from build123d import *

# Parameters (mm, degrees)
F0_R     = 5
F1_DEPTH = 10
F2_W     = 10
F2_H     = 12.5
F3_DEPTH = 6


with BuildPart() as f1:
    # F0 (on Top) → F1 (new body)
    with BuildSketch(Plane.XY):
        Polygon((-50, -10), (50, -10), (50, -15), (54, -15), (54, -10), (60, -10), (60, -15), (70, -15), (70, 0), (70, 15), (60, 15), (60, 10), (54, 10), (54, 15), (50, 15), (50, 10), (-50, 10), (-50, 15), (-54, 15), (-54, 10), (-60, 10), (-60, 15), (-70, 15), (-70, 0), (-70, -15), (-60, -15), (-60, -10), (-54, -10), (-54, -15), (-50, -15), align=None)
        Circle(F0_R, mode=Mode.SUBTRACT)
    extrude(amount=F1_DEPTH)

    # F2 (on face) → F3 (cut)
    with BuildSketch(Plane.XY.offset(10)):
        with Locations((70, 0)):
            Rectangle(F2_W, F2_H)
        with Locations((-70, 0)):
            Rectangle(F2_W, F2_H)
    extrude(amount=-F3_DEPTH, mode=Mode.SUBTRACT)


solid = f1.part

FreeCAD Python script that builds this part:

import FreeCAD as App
import Part
import Sketcher

V = App.Vector
Q = App.Units.Quantity


def add_polygon(sketch, points):
    """Adds a closed chain of lines whose ends are joined by coincident constraints."""
    first, n = sketch.GeometryCount, len(points)
    for a, b in zip(points, points[1:] + points[:1]):
        sketch.addGeometry(Part.LineSegment(App.Vector(*a, 0), App.Vector(*b, 0)), False)
    for i in range(n):
        sketch.addConstraint(Sketcher.Constraint("Coincident", first + i, 2, first + (i + 1) % n, 1))

doc = App.newDocument("Part")
body = doc.addObject("PartDesign::Body", "Body")

# Sketch on XY plane
sketch1 = body.newObject("Sketcher::SketchObject", "Sketch")
sketch1.AttachmentSupport = (doc.getObject("XY_Plane"), [""])
sketch1.MapMode = "FlatFace"
add_polygon(sketch1, [(-50, -10), (50, -10), (50, -15), (54, -15), (54, -10), (60, -10), (60, -15), (70, -15), (70, 15), (60, 15), (60, 10), (54, 10), (54, 15), (50, 15), (50, 10), (-50, 10), (-50, 15), (-54, 15), (-54, 10), (-60, 10), (-60, 15), (-70, 15), (-70, -15), (-60, -15), (-60, -10), (-54, -10), (-54, -15), (-50, -15)])  # lines 0-27
sketch1.addGeometry(Part.Circle(V(0, 0, 0), V(0, 0, 1), 5), False)  # 28
sketch1.addConstraint([
    Sketcher.Constraint("Horizontal", 0),
    Sketcher.Constraint("Vertical", 1),
    Sketcher.Constraint("Horizontal", 2),
    Sketcher.Constraint("Vertical", 3),
    Sketcher.Constraint("Horizontal", 4),
    Sketcher.Constraint("Vertical", 5),
    Sketcher.Constraint("Horizontal", 6),
    Sketcher.Constraint("Vertical", 7),
    Sketcher.Constraint("Horizontal", 8),
    Sketcher.Constraint("Vertical", 9),
    Sketcher.Constraint("Horizontal", 10),
    Sketcher.Constraint("Vertical", 11),
    Sketcher.Constraint("Horizontal", 12),
    Sketcher.Constraint("Vertical", 13),
    Sketcher.Constraint("Horizontal", 14),
    Sketcher.Constraint("Vertical", 15),
    Sketcher.Constraint("Horizontal", 16),
    Sketcher.Constraint("Vertical", 17),
    Sketcher.Constraint("Horizontal", 18),
    Sketcher.Constraint("Vertical", 19),
    Sketcher.Constraint("Horizontal", 20),
    Sketcher.Constraint("Vertical", 21),
    Sketcher.Constraint("Horizontal", 22),
    Sketcher.Constraint("Vertical", 23),
    Sketcher.Constraint("Horizontal", 24),
    Sketcher.Constraint("Vertical", 25),
    Sketcher.Constraint("Horizontal", 26),
    Sketcher.Constraint("Vertical", 27),
    Sketcher.Constraint("Coincident", 28, 3, -1, 1),
    Sketcher.Constraint("Symmetric", 0, 2, 14, 2, -1, 1),
    Sketcher.Constraint("Symmetric", 2, 2, 16, 2, -1, 1),
    Sketcher.Constraint("Symmetric", 4, 2, 18, 2, -1, 1),
    Sketcher.Constraint("Symmetric", 6, 2, 20, 2, -1, 1),
    Sketcher.Constraint("Symmetric", 8, 2, 22, 2, -1, 1),
    Sketcher.Constraint("Symmetric", 10, 2, 24, 2, -1, 1),
    Sketcher.Constraint("Symmetric", 12, 2, 26, 2, -1, 1),
    Sketcher.Constraint("Symmetric", 12, 2, 15, 2, -2),
    Sketcher.Constraint("Symmetric", 10, 2, 17, 2, -2),
    Sketcher.Constraint("Symmetric", 8, 2, 19, 2, -2),
    Sketcher.Constraint("Horizontal", 0, 2, 3, 2),
    Sketcher.Constraint("Horizontal", 2, 2, 5, 2),
    Sketcher.Constraint("Diameter", 28, Q("10 mm")),
    Sketcher.Constraint("DistanceX", 0, 1, 0, 2, Q("100 mm")),
    Sketcher.Constraint("DistanceX", 2, 1, 2, 2, Q("4 mm")),
    Sketcher.Constraint("DistanceX", 4, 1, 4, 2, Q("6 mm")),
    Sketcher.Constraint("DistanceX", 6, 1, 6, 2, Q("10 mm")),
    Sketcher.Constraint("DistanceY", 1, 2, 1, 1, Q("5 mm")),
    Sketcher.Constraint("DistanceY", 7, 1, 7, 2, Q("30 mm")),
])
pad1 = body.newObject("PartDesign::Pad", "Pad")
pad1.Profile = sketch1
pad1.Length = 10

# Sketch on XY plane
sketch2 = body.newObject("Sketcher::SketchObject", "Sketch001")
sketch2.AttachmentSupport = (doc.getObject("XY_Plane"), [""])
sketch2.MapMode = "FlatFace"
sketch2.AttachmentOffset = App.Placement(V(0, 0, 10), App.Rotation())
add_polygon(sketch2, [(65, 6), (65, -6), (75, -6), (75, 6)])  # lines 0-3
add_polygon(sketch2, [(-75, 6), (-75, -6), (-65, -6), (-65, 6)])  # lines 4-7
sketch2.addConstraint([
    Sketcher.Constraint("Vertical", 0),
    Sketcher.Constraint("Horizontal", 1),
    Sketcher.Constraint("Vertical", 2),
    Sketcher.Constraint("Horizontal", 3),
    Sketcher.Constraint("Vertical", 4),
    Sketcher.Constraint("Horizontal", 5),
    Sketcher.Constraint("Vertical", 6),
    Sketcher.Constraint("Horizontal", 7),
    Sketcher.Constraint("Symmetric", 2, 2, 4, 2, -1, 1),
    Sketcher.Constraint("Symmetric", 0, 2, 6, 2, -1, 1),
    Sketcher.Constraint("Horizontal", 1, 2, 4, 2),
    Sketcher.Constraint("DistanceX", 1, 1, 1, 2, Q("10 mm")),
    Sketcher.Constraint("DistanceY", 0, 2, 0, 1, Q("12.5 mm")),
    Sketcher.Constraint("DistanceX", -1, 1, 0, 2, Q("65 mm")),
])
pocket1 = body.newObject("PartDesign::Pocket", "Pocket")
pocket1.Profile = sketch2
pocket1.Length = 6

doc.recompute()
